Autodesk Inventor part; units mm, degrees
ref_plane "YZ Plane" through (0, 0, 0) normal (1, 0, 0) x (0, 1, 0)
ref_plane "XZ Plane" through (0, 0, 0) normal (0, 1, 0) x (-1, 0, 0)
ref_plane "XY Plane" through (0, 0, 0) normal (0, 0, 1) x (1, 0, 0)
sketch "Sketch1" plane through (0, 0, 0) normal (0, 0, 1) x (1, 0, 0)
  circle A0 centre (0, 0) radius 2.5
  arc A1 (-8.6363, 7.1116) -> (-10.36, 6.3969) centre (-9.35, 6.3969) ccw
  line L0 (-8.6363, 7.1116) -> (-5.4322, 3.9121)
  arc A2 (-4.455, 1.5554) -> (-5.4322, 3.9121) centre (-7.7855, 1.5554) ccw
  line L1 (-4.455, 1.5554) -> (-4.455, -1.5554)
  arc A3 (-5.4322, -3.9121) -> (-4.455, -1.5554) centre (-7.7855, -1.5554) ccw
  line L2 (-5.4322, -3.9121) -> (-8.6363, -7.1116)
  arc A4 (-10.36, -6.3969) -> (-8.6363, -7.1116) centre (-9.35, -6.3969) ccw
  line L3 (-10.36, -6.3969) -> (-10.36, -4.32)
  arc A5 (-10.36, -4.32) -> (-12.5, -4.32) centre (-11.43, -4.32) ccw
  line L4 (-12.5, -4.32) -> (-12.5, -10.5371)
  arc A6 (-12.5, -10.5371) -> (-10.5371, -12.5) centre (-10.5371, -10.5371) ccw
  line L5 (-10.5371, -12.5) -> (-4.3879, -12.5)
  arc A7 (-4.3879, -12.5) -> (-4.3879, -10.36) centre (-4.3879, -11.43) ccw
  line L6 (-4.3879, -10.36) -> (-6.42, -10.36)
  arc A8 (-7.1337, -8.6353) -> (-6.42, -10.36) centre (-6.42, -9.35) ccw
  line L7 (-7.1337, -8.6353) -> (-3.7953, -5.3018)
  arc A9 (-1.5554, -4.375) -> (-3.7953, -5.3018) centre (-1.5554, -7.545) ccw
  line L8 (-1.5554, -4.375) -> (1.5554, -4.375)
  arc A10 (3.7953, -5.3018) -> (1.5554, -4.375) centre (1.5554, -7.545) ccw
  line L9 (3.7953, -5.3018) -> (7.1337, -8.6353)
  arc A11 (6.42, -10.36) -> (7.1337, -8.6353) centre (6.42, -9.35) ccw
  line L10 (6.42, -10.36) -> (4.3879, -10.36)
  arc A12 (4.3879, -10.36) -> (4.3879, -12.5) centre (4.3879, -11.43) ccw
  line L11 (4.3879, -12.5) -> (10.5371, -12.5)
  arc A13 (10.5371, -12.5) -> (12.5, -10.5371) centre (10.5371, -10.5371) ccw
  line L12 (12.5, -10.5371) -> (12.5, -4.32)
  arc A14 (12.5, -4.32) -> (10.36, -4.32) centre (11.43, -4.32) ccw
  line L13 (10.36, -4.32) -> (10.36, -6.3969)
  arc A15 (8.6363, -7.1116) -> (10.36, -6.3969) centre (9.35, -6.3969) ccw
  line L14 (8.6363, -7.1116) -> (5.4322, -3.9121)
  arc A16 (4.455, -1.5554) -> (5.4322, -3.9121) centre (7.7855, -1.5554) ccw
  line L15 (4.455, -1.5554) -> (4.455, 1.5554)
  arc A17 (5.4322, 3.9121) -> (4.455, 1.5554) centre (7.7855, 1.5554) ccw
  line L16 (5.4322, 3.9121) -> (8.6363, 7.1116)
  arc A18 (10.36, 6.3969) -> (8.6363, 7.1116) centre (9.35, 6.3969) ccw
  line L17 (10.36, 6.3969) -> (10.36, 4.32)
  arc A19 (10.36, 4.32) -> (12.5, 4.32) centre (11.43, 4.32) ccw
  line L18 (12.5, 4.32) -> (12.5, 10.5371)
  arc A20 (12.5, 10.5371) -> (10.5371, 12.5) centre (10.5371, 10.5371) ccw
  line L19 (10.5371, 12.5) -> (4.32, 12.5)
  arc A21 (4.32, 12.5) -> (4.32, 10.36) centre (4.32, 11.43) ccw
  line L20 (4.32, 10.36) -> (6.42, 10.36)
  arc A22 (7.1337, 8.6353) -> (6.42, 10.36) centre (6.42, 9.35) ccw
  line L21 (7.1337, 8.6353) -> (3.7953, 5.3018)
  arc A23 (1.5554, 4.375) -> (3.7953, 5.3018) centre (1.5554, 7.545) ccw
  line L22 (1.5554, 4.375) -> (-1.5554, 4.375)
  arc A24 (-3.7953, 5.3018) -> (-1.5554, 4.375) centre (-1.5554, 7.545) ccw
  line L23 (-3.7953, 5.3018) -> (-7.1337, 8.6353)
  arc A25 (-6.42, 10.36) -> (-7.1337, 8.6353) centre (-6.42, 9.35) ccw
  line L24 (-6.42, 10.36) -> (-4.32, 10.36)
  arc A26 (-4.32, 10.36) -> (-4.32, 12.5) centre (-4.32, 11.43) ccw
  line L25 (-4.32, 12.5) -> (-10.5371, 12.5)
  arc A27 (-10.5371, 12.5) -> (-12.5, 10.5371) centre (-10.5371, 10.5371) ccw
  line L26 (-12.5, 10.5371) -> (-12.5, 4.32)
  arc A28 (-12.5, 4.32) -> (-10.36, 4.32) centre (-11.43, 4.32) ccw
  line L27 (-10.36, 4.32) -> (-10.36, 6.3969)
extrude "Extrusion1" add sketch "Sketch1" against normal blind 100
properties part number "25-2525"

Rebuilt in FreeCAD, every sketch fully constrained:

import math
import FreeCAD as App
import Part
import Sketcher
from FreeCAD import Vector
Q = App.Units.Quantity

doc = App.newDocument("Part")
body = doc.addObject("PartDesign::Body", "Body")

sketch1 = body.newObject("Sketcher::SketchObject", "Sketch")
sketch1.AttachmentSupport = (doc.getObject("XY_Plane"), [""])
sketch1.MapMode = "FlatFace"
sketch1.addGeometry([
    Part.ArcOfCircle(Part.Circle(Vector(-9.3, 6.4, 0), Vector(0, 0, 1), 1), math.radians(45), math.radians(180)),
    Part.LineSegment(Vector(-8.6, 7.1, 0), Vector(-5.4, 3.9, 0)),
    Part.ArcOfCircle(Part.Circle(Vector(-7.8, 1.6, 0), Vector(0, 0, 1), 3.3), math.radians(0), math.radians(45)),
    Part.LineSegment(Vector(-4.5, 1.6, 0), Vector(-4.5, -1.6, 0)),
    Part.ArcOfCircle(Part.Circle(Vector(-7.8, -1.6, 0), Vector(0, 0, 1), 3.3), math.radians(-45), math.radians(0)),
    Part.LineSegment(Vector(-5.4, -3.9, 0), Vector(-8.6, -7.1, 0)),
    Part.ArcOfCircle(Part.Circle(Vector(-9.3, -6.4, 0), Vector(0, 0, 1), 1), math.radians(180), math.radians(315)),
    Part.LineSegment(Vector(-10.4, -6.4, 0), Vector(-10.4, -4.3, 0)),
    Part.ArcOfCircle(Part.Circle(Vector(-11.4, -4.3, 0), Vector(0, 0, 1), 1.1), math.radians(0), math.radians(180)),
    Part.LineSegment(Vector(-12.5, -4.3, 0), Vector(-12.5, -10.5, 0)),
    Part.ArcOfCircle(Part.Circle(Vector(-10.5, -10.5, 0), Vector(0, 0, 1), 2), math.radians(180), math.radians(270)),
    Part.LineSegment(Vector(-10.5, -12.5, 0), Vector(-4.4, -12.5, 0)),
    Part.ArcOfCircle(Part.Circle(Vector(-4.4, -11.4, 0), Vector(0, 0, 1), 1.1), math.radians(-90), math.radians(90)),
    Part.LineSegment(Vector(-4.4, -10.4, 0), Vector(-6.4, -10.4, 0)),
    Part.ArcOfCircle(Part.Circle(Vector(-6.4, -9.3, 0), Vector(0, 0, 1), 1), math.radians(135), math.radians(270)),
    Part.LineSegment(Vector(-7.1, -8.6, 0), Vector(-3.8, -5.3, 0)),
    Part.ArcOfCircle(Part.Circle(Vector(-1.6, -7.5, 0), Vector(0, 0, 1), 3.2), math.radians(90), math.radians(135)),
    Part.LineSegment(Vector(-1.6, -4.4, 0), Vector(1.6, -4.4, 0)),
    Part.ArcOfCircle(Part.Circle(Vector(1.6, -7.5, 0), Vector(0, 0, 1), 3.2), math.radians(45), math.radians(90)),
    Part.LineSegment(Vector(3.8, -5.3, 0), Vector(7.1, -8.6, 0)),
    Part.ArcOfCircle(Part.Circle(Vector(6.4, -9.3, 0), Vector(0, 0, 1), 1), math.radians(-90), math.radians(45)),
    Part.LineSegment(Vector(6.4, -10.4, 0), Vector(4.4, -10.4, 0)),
    Part.ArcOfCircle(Part.Circle(Vector(4.4, -11.4, 0), Vector(0, 0, 1), 1.1), math.radians(90), math.radians(270)),
    Part.LineSegment(Vector(4.4, -12.5, 0), Vector(10.5, -12.5, 0)),
    Part.ArcOfCircle(Part.Circle(Vector(10.5, -10.5, 0), Vector(0, 0, 1), 2), math.radians(-90), math.radians(0)),
    Part.LineSegment(Vector(12.5, -10.5, 0), Vector(12.5, -4.3, 0)),
    Part.ArcOfCircle(Part.Circle(Vector(11.4, -4.3, 0), Vector(0, 0, 1), 1.1), math.radians(0), math.radians(180)),
    Part.LineSegment(Vector(10.4, -4.3, 0), Vector(10.4, -6.4, 0)),
    Part.ArcOfCircle(Part.Circle(Vector(9.3, -6.4, 0), Vector(0, 0, 1), 1), math.radians(-135), math.radians(0)),
    Part.LineSegment(Vector(8.6, -7.1, 0), Vector(5.4, -3.9, 0)),
    Part.ArcOfCircle(Part.Circle(Vector(7.8, -1.6, 0), Vector(0, 0, 1), 3.3), math.radians(180), math.radians(225)),
    Part.LineSegment(Vector(4.5, -1.6, 0), Vector(4.5, 1.6, 0)),
    Part.ArcOfCircle(Part.Circle(Vector(7.8, 1.6, 0), Vector(0, 0, 1), 3.3), math.radians(135), math.radians(180)),
    Part.LineSegment(Vector(5.4, 3.9, 0), Vector(8.6, 7.1, 0)),
    Part.ArcOfCircle(Part.Circle(Vector(9.3, 6.4, 0), Vector(0, 0, 1), 1), math.radians(0), math.radians(135)),
    Part.LineSegment(Vector(10.4, 6.4, 0), Vector(10.4, 4.3, 0)),
    Part.ArcOfCircle(Part.Circle(Vector(11.4, 4.3, 0), Vector(0, 0, 1), 1.1), math.radians(180), math.radians(360)),
    Part.LineSegment(Vector(12.5, 4.3, 0), Vector(12.5, 10.5, 0)),
    Part.ArcOfCircle(Part.Circle(Vector(10.5, 10.5, 0), Vector(0, 0, 1), 2), math.radians(0), math.radians(90)),
    Part.LineSegment(Vector(10.5, 12.5, 0), Vector(4.3, 12.5, 0)),
    Part.ArcOfCircle(Part.Circle(Vector(4.3, 11.4, 0), Vector(0, 0, 1), 1.1), math.radians(90), math.radians(270)),
    Part.LineSegment(Vector(4.3, 10.4, 0), Vector(6.4, 10.4, 0)),
    Part.ArcOfCircle(Part.Circle(Vector(6.4, 9.3, 0), Vector(0, 0, 1), 1), math.radians(-45), math.radians(90)),
    Part.LineSegment(Vector(7.1, 8.6, 0), Vector(3.8, 5.3, 0)),
    Part.ArcOfCircle(Part.Circle(Vector(1.6, 7.5, 0), Vector(0, 0, 1), 3.2), math.radians(-90), math.radians(-45)),
    Part.LineSegment(Vector(1.6, 4.4, 0), Vector(-1.6, 4.4, 0)),
    Part.ArcOfCircle(Part.Circle(Vector(-1.6, 7.5, 0), Vector(0, 0, 1), 3.2), math.radians(-135), math.radians(-90)),
    Part.LineSegment(Vector(-3.8, 5.3, 0), Vector(-7.1, 8.6, 0)),
    Part.ArcOfCircle(Part.Circle(Vector(-6.4, 9.3, 0), Vector(0, 0, 1), 1), math.radians(90), math.radians(225)),
    Part.LineSegment(Vector(-6.4, 10.4, 0), Vector(-4.3, 10.4, 0)),
    Part.ArcOfCircle(Part.Circle(Vector(-4.3, 11.4, 0), Vector(0, 0, 1), 1.1), math.radians(-90), math.radians(90)),
    Part.LineSegment(Vector(-4.3, 12.5, 0), Vector(-10.5, 12.5, 0)),
    Part.ArcOfCircle(Part.Circle(Vector(-10.5, 10.5, 0), Vector(0, 0, 1), 2), math.radians(90), math.radians(180)),
    Part.LineSegment(Vector(-12.5, 10.5, 0), Vector(-12.5, 4.3, 0)),
    Part.ArcOfCircle(Part.Circle(Vector(-11.4, 4.3, 0), Vector(0, 0, 1), 1.1), math.radians(180), math.radians(360)),
    Part.LineSegment(Vector(-10.4, 4.3, 0), Vector(-10.4, 6.4, 0)),
    Part.Circle(Vector(0, 0, 0), Vector(0, 0, 1), 2.5),
], False)
sketch1.addConstraint([
    Sketcher.Constraint("Tangent", 0, 1, 1, 1),
    Sketcher.Constraint("Tangent", 1, 2, 2, 2),
    Sketcher.Constraint("Tangent", 2, 1, 3, 1),
    Sketcher.Constraint("Tangent", 3, 2, 4, 2),
    Sketcher.Constraint("Tangent", 4, 1, 5, 1),
    Sketcher.Constraint("Tangent", 5, 2, 6, 2),
    Sketcher.Constraint("Tangent", 6, 1, 7, 1),
    Sketcher.Constraint("Tangent", 7, 2, 8, 1),
    Sketcher.Constraint("Tangent", 8, 2, 9, 1),
    Sketcher.Constraint("Tangent", 9, 2, 10, 1),
    Sketcher.Constraint("Tangent", 10, 2, 11, 1),
    Sketcher.Constraint("Tangent", 11, 2, 12, 1),
    Sketcher.Constraint("Tangent", 12, 2, 13, 1),
    Sketcher.Constraint("Tangent", 13, 2, 14, 2),
    Sketcher.Constraint("Tangent", 14, 1, 15, 1),
    Sketcher.Constraint("Tangent", 15, 2, 16, 2),
    Sketcher.Constraint("Tangent", 16, 1, 17, 1),
    Sketcher.Constraint("Tangent", 17, 2, 18, 2),
    Sketcher.Constraint("Tangent", 18, 1, 19, 1),
    Sketcher.Constraint("Tangent", 19, 2, 20, 2),
    Sketcher.Constraint("Tangent", 20, 1, 21, 1),
    Sketcher.Constraint("Tangent", 21, 2, 22, 1),
    Sketcher.Constraint("Tangent", 22, 2, 23, 1),
    Sketcher.Constraint("Tangent", 23, 2, 24, 1),
    Sketcher.Constraint("Tangent", 24, 2, 25, 1),
    Sketcher.Constraint("Tangent", 25, 2, 26, 1),
    Sketcher.Constraint("Tangent", 26, 2, 27, 1),
    Sketcher.Constraint("Tangent", 27, 2, 28, 2),
    Sketcher.Constraint("Tangent", 28, 1, 29, 1),
    Sketcher.Constraint("Tangent", 29, 2, 30, 2),
    Sketcher.Constraint("Tangent", 30, 1, 31, 1),
    Sketcher.Constraint("Tangent", 31, 2, 32, 2),
    Sketcher.Constraint("Tangent", 32, 1, 33, 1),
    Sketcher.Constraint("Tangent", 33, 2, 34, 2),
    Sketcher.Constraint("Tangent", 34, 1, 35, 1),
    Sketcher.Constraint("Tangent", 35, 2, 36, 1),
    Sketcher.Constraint("Tangent", 36, 2, 37, 1),
    Sketcher.Constraint("Tangent", 37, 2, 38, 1),
    Sketcher.Constraint("Tangent", 38, 2, 39, 1),
    Sketcher.Constraint("Tangent", 39, 2, 40, 1),
    Sketcher.Constraint("Tangent", 40, 2, 41, 1),
    Sketcher.Constraint("Tangent", 41, 2, 42, 2),
    Sketcher.Constraint("Tangent", 42, 1, 43, 1),
    Sketcher.Constraint("Tangent", 43, 2, 44, 2),
    Sketcher.Constraint("Tangent", 44, 1, 45, 1),
    Sketcher.Constraint("Tangent", 45, 2, 46, 2),
    Sketcher.Constraint("Tangent", 46, 1, 47, 1),
    Sketcher.Constraint("Tangent", 47, 2, 48, 2),
    Sketcher.Constraint("Tangent", 48, 1, 49, 1),
    Sketcher.Constraint("Tangent", 49, 2, 50, 1),
    Sketcher.Constraint("Tangent", 50, 2, 51, 1),
    Sketcher.Constraint("Tangent", 51, 2, 52, 1),
    Sketcher.Constraint("Tangent", 52, 2, 53, 1),
    Sketcher.Constraint("Tangent", 53, 2, 54, 1),
    Sketcher.Constraint("Tangent", 54, 2, 55, 1),
    Sketcher.Constraint("Tangent", 55, 2, 0, 2),
    Sketcher.Constraint("Vertical", 3),
    Sketcher.Constraint("Vertical", 7),
    Sketcher.Constraint("Vertical", 9),
    Sketcher.Constraint("Horizontal", 11),
    Sketcher.Constraint("Horizontal", 13),
    Sketcher.Constraint("Horizontal", 17),
    Sketcher.Constraint("Horizontal", 21),
    Sketcher.Constraint("Horizontal", 23),
    Sketcher.Constraint("Vertical", 25),
    Sketcher.Constraint("Vertical", 27),
    Sketcher.Constraint("Vertical", 31),
    Sketcher.Constraint("Vertical", 35),
    Sketcher.Constraint("Vertical", 37),
    Sketcher.Constraint("Horizontal", 39),
    Sketcher.Constraint("Horizontal", 41),
    Sketcher.Constraint("Horizontal", 45),
    Sketcher.Constraint("Horizontal", 49),
    Sketcher.Constraint("Horizontal", 51),
    Sketcher.Constraint("Vertical", 53),
    Sketcher.Constraint("Vertical", 55),
    Sketcher.Constraint("Coincident", 56, 3, -1, 1),
    Sketcher.Constraint("Equal", 2, 4),
    Sketcher.Constraint("Equal", 0, 6),
    Sketcher.Constraint("Equal", 8, 12),
    Sketcher.Constraint("Equal", 6, 14),
    Sketcher.Constraint("Equal", 16, 18),
    Sketcher.Constraint("Equal", 14, 20),
    Sketcher.Constraint("Equal", 12, 22),
    Sketcher.Constraint("Equal", 10, 24),
    Sketcher.Constraint("Equal", 22, 26),
    Sketcher.Constraint("Equal", 20, 28),
    Sketcher.Constraint("Equal", 4, 30),
    Sketcher.Constraint("Equal", 30, 32),
    Sketcher.Constraint("Equal", 28, 34),
    Sketcher.Constraint("Equal", 26, 36),
    Sketcher.Constraint("Equal", 24, 38),
    Sketcher.Constraint("Equal", 36, 40),
    Sketcher.Constraint("Equal", 34, 42),
    Sketcher.Constraint("Equal", 18, 44),
    Sketcher.Constraint("Equal", 44, 46),
    Sketcher.Constraint("Equal", 42, 48),
    Sketcher.Constraint("Equal", 40, 50),
    Sketcher.Constraint("Equal", 38, 52),
    Sketcher.Constraint("Equal", 50, 54),
    Sketcher.Constraint("Symmetric", 0, 3, 28, 3, -1, 1),
    Sketcher.Constraint("Symmetric", 2, 3, 30, 3, -1, 1),
    Sketcher.Constraint("Symmetric", 6, 3, 34, 3, -1, 1),
    Sketcher.Constraint("Symmetric", 14, 3, 42, 3, -1, 1),
    Sketcher.Constraint("Symmetric", 16, 3, 44, 3, -1, 1),
    Sketcher.Constraint("Symmetric", 20, 3, 48, 3, -1, 1),
    Sketcher.Constraint("Symmetric", 14, 3, 20, 3, -2),
    Sketcher.Constraint("Symmetric", 8, 3, 26, 3, -2),
    Sketcher.Constraint("Symmetric", 5, 2, 28, 1, -2),
    Sketcher.Constraint("Parallel", 5, 15),
    Sketcher.Constraint("Parallel", 1, 19),
    Sketcher.Constraint("Parallel", 15, 33),
    Sketcher.Constraint("Parallel", 29, 47),
    Sketcher.Constraint("Horizontal", 36, 3, 54, 3),
    Sketcher.Constraint("Equal", 13, 21),
    Sketcher.Constraint("Equal", 41, 49),
    Sketcher.Constraint("Equal", 45, 3),
    Sketcher.Constraint("Equal", 51, 9),
    Sketcher.Constraint("Equal", 27, 35),
    Sketcher.Constraint("Diameter", 56, 5.0),
    Sketcher.Constraint("Radius", 0, 1.01),
    Sketcher.Constraint("Radius", 8, 1.07),
    Sketcher.Constraint("Radius", 16, 3.17),
    Sketcher.Constraint("DistanceX", 41, 1, 41, 2, 2.1),
    Sketcher.Constraint("Radius", 10, 1.963),
    Sketcher.Constraint("DistanceX", 8, 2, -1, 1, 12.5),
    Sketcher.Constraint("DistanceY", 10, 2, -1, 1, 12.5),
    Sketcher.Constraint("Angle", 1, Q("-44.9588 deg")),
    Sketcher.Constraint("Radius", 2, 3.3305),
    Sketcher.Constraint("DistanceX", 13, 2, 13, 1, 2.032),
    Sketcher.Constraint("DistanceX", 39, 2, 39, 1, 6.217),
    Sketcher.Constraint("DistanceY", 7, 1, 7, 2, 2.077),
    Sketcher.Constraint("Distance", 1, 4.528),
])
pad1 = body.newObject("PartDesign::Pad", "Pad")
pad1.Profile = sketch1
pad1.Length = 100
pad1.Reversed = True

doc.recompute()
